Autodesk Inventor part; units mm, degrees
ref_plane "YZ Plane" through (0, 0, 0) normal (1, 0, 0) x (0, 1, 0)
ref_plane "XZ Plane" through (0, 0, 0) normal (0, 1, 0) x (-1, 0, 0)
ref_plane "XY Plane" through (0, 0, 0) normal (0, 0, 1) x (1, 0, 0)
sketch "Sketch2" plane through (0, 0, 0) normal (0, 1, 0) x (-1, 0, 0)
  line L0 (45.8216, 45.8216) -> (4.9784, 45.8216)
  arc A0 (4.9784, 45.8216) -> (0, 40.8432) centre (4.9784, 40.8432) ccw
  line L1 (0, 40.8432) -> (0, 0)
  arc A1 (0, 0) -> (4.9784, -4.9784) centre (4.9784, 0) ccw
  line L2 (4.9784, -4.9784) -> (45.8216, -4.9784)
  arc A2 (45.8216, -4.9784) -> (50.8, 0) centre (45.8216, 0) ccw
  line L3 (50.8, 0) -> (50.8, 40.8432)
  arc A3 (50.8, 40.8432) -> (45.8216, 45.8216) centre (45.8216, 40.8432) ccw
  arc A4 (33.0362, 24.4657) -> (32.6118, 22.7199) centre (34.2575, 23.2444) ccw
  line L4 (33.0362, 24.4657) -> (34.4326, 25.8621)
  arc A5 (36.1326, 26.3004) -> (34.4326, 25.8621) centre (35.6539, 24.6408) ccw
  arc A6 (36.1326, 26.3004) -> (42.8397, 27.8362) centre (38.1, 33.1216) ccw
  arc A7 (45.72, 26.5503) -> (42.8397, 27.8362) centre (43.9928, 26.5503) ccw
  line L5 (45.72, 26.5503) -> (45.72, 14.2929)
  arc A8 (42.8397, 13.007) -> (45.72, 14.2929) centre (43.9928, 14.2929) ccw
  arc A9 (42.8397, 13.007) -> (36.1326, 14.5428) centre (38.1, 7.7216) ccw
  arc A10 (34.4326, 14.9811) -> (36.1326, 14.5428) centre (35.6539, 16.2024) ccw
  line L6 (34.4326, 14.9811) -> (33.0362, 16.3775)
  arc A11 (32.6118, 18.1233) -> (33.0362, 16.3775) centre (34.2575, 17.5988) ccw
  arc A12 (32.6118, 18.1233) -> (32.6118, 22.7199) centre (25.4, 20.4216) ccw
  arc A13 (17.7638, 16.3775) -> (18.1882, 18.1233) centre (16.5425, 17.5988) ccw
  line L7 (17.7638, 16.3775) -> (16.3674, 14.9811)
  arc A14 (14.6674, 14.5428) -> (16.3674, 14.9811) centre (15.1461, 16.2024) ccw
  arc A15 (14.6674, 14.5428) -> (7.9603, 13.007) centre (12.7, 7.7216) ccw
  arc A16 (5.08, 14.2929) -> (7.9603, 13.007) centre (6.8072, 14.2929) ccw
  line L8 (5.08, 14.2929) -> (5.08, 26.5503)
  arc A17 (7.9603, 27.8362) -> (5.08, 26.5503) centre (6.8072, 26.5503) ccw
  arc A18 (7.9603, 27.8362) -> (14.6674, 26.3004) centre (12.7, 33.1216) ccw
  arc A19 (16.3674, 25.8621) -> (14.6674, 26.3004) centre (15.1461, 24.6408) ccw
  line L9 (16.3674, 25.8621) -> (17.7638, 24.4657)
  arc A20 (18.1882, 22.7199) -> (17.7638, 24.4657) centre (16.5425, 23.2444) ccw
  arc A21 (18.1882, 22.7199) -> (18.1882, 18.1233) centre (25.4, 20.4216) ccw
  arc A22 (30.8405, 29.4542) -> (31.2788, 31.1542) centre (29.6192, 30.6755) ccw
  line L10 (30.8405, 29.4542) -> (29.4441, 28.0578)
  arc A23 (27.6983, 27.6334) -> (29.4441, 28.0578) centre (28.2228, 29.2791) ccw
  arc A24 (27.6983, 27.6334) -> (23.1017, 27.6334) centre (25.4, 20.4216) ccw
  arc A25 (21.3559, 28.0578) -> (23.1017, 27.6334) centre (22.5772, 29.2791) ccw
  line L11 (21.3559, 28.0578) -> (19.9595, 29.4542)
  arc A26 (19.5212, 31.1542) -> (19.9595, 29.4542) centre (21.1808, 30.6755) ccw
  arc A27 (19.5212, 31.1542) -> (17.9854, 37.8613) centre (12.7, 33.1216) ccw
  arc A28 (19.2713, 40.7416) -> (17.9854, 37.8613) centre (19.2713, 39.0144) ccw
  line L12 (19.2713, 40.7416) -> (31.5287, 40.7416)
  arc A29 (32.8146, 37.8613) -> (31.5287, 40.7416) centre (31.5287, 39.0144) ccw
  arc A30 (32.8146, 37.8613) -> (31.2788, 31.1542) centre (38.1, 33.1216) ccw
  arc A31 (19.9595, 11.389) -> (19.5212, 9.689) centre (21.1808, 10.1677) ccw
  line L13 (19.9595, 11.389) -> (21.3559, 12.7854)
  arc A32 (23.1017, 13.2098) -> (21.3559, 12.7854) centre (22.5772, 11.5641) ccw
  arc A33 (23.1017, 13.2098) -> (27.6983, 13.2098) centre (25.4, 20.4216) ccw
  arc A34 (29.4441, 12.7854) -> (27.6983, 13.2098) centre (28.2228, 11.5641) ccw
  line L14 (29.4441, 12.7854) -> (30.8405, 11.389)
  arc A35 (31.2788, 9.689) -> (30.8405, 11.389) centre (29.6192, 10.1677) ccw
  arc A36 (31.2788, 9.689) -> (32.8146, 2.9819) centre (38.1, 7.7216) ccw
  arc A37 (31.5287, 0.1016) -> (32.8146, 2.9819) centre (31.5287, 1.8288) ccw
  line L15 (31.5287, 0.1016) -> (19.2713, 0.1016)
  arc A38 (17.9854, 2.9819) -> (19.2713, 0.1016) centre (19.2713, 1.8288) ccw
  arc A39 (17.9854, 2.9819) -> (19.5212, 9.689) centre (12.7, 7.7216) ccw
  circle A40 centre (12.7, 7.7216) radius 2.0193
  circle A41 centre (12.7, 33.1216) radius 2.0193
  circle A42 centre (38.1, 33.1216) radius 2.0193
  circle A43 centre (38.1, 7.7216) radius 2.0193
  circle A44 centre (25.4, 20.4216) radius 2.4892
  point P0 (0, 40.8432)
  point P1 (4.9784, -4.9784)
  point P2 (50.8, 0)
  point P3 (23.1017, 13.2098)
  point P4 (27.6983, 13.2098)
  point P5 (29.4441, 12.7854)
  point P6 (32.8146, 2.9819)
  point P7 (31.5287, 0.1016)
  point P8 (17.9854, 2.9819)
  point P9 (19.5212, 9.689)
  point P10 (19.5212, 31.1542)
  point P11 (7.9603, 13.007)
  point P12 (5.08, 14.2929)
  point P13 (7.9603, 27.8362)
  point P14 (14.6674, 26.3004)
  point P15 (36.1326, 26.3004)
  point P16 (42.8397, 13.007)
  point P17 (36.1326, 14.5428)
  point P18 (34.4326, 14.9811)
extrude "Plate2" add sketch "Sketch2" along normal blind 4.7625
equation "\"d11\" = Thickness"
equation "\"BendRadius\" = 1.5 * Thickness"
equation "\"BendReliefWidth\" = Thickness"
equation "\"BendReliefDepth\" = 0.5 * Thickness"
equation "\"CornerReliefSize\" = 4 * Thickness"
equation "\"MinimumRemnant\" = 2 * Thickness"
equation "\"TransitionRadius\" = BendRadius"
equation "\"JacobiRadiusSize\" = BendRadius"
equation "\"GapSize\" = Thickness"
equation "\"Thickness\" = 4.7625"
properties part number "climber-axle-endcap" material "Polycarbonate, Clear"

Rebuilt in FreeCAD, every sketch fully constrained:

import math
import FreeCAD as App
import Part
import Sketcher
from FreeCAD import Vector
Q = App.Units.Quantity

doc = App.newDocument("Part")
body = doc.addObject("PartDesign::Body", "Body")

sketch1 = body.newObject("Sketcher::SketchObject", "Sketch")
sketch1.AttachmentSupport = (doc.getObject("XZ_Plane"), [""])
sketch1.MapMode = "FlatFace"
sketch1.addGeometry(Part.ArcOfCircle(Part.Circle(Vector(-45.8216, 40.8432, 0), Vector(0, 0, 1), 4.9784), math.radians(90), math.radians(180)), False)
sketch1.addGeometry(Part.LineSegment(Vector(-45.8216, 45.8216, 0), Vector(-4.9784, 45.8216, 0)), False)
sketch1.addGeometry(Part.ArcOfCircle(Part.Circle(Vector(-4.9784, 40.8432, 0), Vector(0, 0, 1), 4.9784), math.radians(0), math.radians(90)), False)
sketch1.addGeometry(Part.LineSegment(Vector(0, 40.8432, 0), Vector(0, 0, 0)), False)
sketch1.addGeometry(Part.ArcOfCircle(Part.Circle(Vector(-4.9784, 0, 0), Vector(0, 0, 1), 4.9784), math.radians(-90), math.radians(0)), False)
sketch1.addGeometry(Part.LineSegment(Vector(-4.9784, -4.9784, 0), Vector(-45.8216, -4.9784, 0)), False)
sketch1.addGeometry(Part.ArcOfCircle(Part.Circle(Vector(-45.8216, 0, 0), Vector(0, 0, 1), 4.9784), math.radians(180), math.radians(270)), False)
sketch1.addGeometry(Part.LineSegment(Vector(-50.8, 0, 0), Vector(-50.8, 40.8432, 0)), False)
sketch1.addGeometry(Part.Circle(Vector(-12.7, 7.7216, 0), Vector(0, 0, 1), 2.0193), False)
sketch1.addGeometry(Part.ArcOfCircle(Part.Circle(Vector(-16.5425, 17.5988, 0), Vector(0, 0, 1), 1.727179), math.radians(162.322433), math.radians(225)), False)
sketch1.addGeometry(Part.LineSegment(Vector(-17.7638, 16.3775, 0), Vector(-16.3674, 14.9811, 0)), False)
sketch1.addGeometry(Part.ArcOfCircle(Part.Circle(Vector(-15.1461, 16.2024, 0), Vector(0, 0, 1), 1.72726), math.radians(-135), math.radians(-73.910164)), False)
sketch1.addGeometry(Part.ArcOfCircle(Part.Circle(Vector(-12.7, 7.7216, 0), Vector(0, 0, 1), 7.09931), math.radians(48.115728), math.radians(106.088848)), False)
sketch1.addGeometry(Part.ArcOfCircle(Part.Circle(Vector(-6.8072, 14.2929, 0), Vector(0, 0, 1), 1.7272), math.radians(-131.883406), math.radians(0)), False)
sketch1.addGeometry(Part.LineSegment(Vector(-5.08, 14.2929, 0), Vector(-5.08, 26.5503, 0)), False)
sketch1.addGeometry(Part.ArcOfCircle(Part.Circle(Vector(-6.8072, 26.5503, 0), Vector(0, 0, 1), 1.727188), math.radians(0), math.radians(131.883406)), False)
sketch1.addGeometry(Part.ArcOfCircle(Part.Circle(Vector(-12.7, 33.1216, 0), Vector(0, 0, 1), 7.099256), math.radians(-106.088848), math.radians(-48.115728)), False)
sketch1.addGeometry(Part.ArcOfCircle(Part.Circle(Vector(-15.1461, 24.6408, 0), Vector(0, 0, 1), 1.727179), math.radians(73.910164), math.radians(135)), False)
sketch1.addGeometry(Part.LineSegment(Vector(-16.3674, 25.8621, 0), Vector(-17.7638, 24.4657, 0)), False)
sketch1.addGeometry(Part.ArcOfCircle(Part.Circle(Vector(-16.5425, 23.2444, 0), Vector(0, 0, 1), 1.72726), math.radians(135), math.radians(197.677567)), False)
sketch1.addGeometry(Part.ArcOfCircle(Part.Circle(Vector(-25.4, 20.4216, 0), Vector(0, 0, 1), 7.569164), math.radians(-17.676354), math.radians(17.676354)), False)
sketch1.addGeometry(Part.ArcOfCircle(Part.Circle(Vector(-21.1808, 10.1677, 0), Vector(0, 0, 1), 1.727179), math.radians(-16.089836), math.radians(45)), False)
sketch1.addGeometry(Part.LineSegment(Vector(-19.9595, 11.389, 0), Vector(-21.3559, 12.7854, 0)), False)
sketch1.addGeometry(Part.ArcOfCircle(Part.Circle(Vector(-22.5772, 11.5641, 0), Vector(0, 0, 1), 1.72726), math.radians(45), math.radians(107.677567)), False)
sketch1.addGeometry(Part.ArcOfCircle(Part.Circle(Vector(-25.4, 20.4216, 0), Vector(0, 0, 1), 7.569164), math.radians(-107.676354), math.radians(-72.323646)), False)
sketch1.addGeometry(Part.ArcOfCircle(Part.Circle(Vector(-28.2228, 11.5641, 0), Vector(0, 0, 1), 1.727179), math.radians(72.322433), math.radians(135)), False)
sketch1.addGeometry(Part.LineSegment(Vector(-29.4441, 12.7854, 0), Vector(-30.8405, 11.389, 0)), False)
sketch1.addGeometry(Part.ArcOfCircle(Part.Circle(Vector(-29.6192, 10.1677, 0), Vector(0, 0, 1), 1.72726), math.radians(135), math.radians(196.089836)), False)
sketch1.addGeometry(Part.ArcOfCircle(Part.Circle(Vector(-38.1, 7.7216, 0), Vector(0, 0, 1), 7.09931), math.radians(-41.884272), math.radians(16.088848)), False)
sketch1.addGeometry(Part.ArcOfCircle(Part.Circle(Vector(-31.5287, 1.8288, 0), Vector(0, 0, 1), 1.7272), math.radians(138.116594), math.radians(270)), False)
sketch1.addGeometry(Part.LineSegment(Vector(-31.5287, 0.1016, 0), Vector(-19.2713, 0.1016, 0)), False)
sketch1.addGeometry(Part.ArcOfCircle(Part.Circle(Vector(-19.2713, 1.8288, 0), Vector(0, 0, 1), 1.727188), math.radians(-90), math.radians(41.883406)), False)
sketch1.addGeometry(Part.ArcOfCircle(Part.Circle(Vector(-12.7, 7.7216, 0), Vector(0, 0, 1), 7.099256), math.radians(163.911152), math.radians(221.884272)), False)
sketch1.addGeometry(Part.Circle(Vector(-38.1, 7.7216, 0), Vector(0, 0, 1), 2.0193), False)
sketch1.addGeometry(Part.Circle(Vector(-25.4, 20.4216, 0), Vector(0, 0, 1), 2.4892), False)
sketch1.addGeometry(Part.Circle(Vector(-12.7, 33.1216, 0), Vector(0, 0, 1), 2.0193), False)
sketch1.addGeometry(Part.ArcOfCircle(Part.Circle(Vector(-29.6192, 30.6755, 0), Vector(0, 0, 1), 1.727179), math.radians(163.910164), math.radians(225)), False)
sketch1.addGeometry(Part.LineSegment(Vector(-30.8405, 29.4542, 0), Vector(-29.4441, 28.0578, 0)), False)
sketch1.addGeometry(Part.ArcOfCircle(Part.Circle(Vector(-28.2228, 29.2791, 0), Vector(0, 0, 1), 1.72726), math.radians(-135), math.radians(-72.322433)), False)
sketch1.addGeometry(Part.ArcOfCircle(Part.Circle(Vector(-25.4, 20.4216, 0), Vector(0, 0, 1), 7.569164), math.radians(72.323646), math.radians(107.676354)), False)
sketch1.addGeometry(Part.ArcOfCircle(Part.Circle(Vector(-22.5772, 29.2791, 0), Vector(0, 0, 1), 1.727179), math.radians(-107.677567), math.radians(-45)), False)
sketch1.addGeometry(Part.LineSegment(Vector(-21.3559, 28.0578, 0), Vector(-19.9595, 29.4542, 0)), False)
sketch1.addGeometry(Part.ArcOfCircle(Part.Circle(Vector(-21.1808, 30.6755, 0), Vector(0, 0, 1), 1.72726), math.radians(-45), math.radians(16.089836)), False)
sketch1.addGeometry(Part.ArcOfCircle(Part.Circle(Vector(-12.7, 33.1216, 0), Vector(0, 0, 1), 7.09931), math.radians(138.115728), math.radians(196.088848)), False)
sketch1.addGeometry(Part.ArcOfCircle(Part.Circle(Vector(-19.2713, 39.0144, 0), Vector(0, 0, 1), 1.7272), math.radians(-41.883406), math.radians(90)), False)
sketch1.addGeometry(Part.LineSegment(Vector(-19.2713, 40.7416, 0), Vector(-31.5287, 40.7416, 0)), False)
sketch1.addGeometry(Part.ArcOfCircle(Part.Circle(Vector(-31.5287, 39.0144, 0), Vector(0, 0, 1), 1.727188), math.radians(90), math.radians(221.883406)), False)
sketch1.addGeometry(Part.ArcOfCircle(Part.Circle(Vector(-38.1, 33.1216, 0), Vector(0, 0, 1), 7.099256), math.radians(-16.088848), math.radians(41.884272)), False)
sketch1.addGeometry(Part.ArcOfCircle(Part.Circle(Vector(-34.2575, 23.2444, 0), Vector(0, 0, 1), 1.727179), math.radians(-17.677567), math.radians(45)), False)
sketch1.addGeometry(Part.LineSegment(Vector(-33.0362, 24.4657, 0), Vector(-34.4326, 25.8621, 0)), False)
sketch1.addGeometry(Part.ArcOfCircle(Part.Circle(Vector(-35.6539, 24.6408, 0), Vector(0, 0, 1), 1.72726), math.radians(45), math.radians(106.089836)), False)
sketch1.addGeometry(Part.ArcOfCircle(Part.Circle(Vector(-38.1, 33.1216, 0), Vector(0, 0, 1), 7.09931), math.radians(-131.884272), math.radians(-73.911152)), False)
sketch1.addGeometry(Part.ArcOfCircle(Part.Circle(Vector(-43.9928, 26.5503, 0), Vector(0, 0, 1), 1.7272), math.radians(48.116594), math.radians(180)), False)
sketch1.addGeometry(Part.LineSegment(Vector(-45.72, 26.5503, 0), Vector(-45.72, 14.2929, 0)), False)
sketch1.addGeometry(Part.ArcOfCircle(Part.Circle(Vector(-43.9928, 14.2929, 0), Vector(0, 0, 1), 1.727188), math.radians(180), math.radians(311.883406)), False)
sketch1.addGeometry(Part.ArcOfCircle(Part.Circle(Vector(-38.1, 7.7216, 0), Vector(0, 0, 1), 7.099256), math.radians(73.911152), math.radians(131.884272)), False)
sketch1.addGeometry(Part.ArcOfCircle(Part.Circle(Vector(-35.6539, 16.2024, 0), Vector(0, 0, 1), 1.727179), math.radians(-106.089836), math.radians(-45)), False)
sketch1.addGeometry(Part.LineSegment(Vector(-34.4326, 14.9811, 0), Vector(-33.0362, 16.3775, 0)), False)
sketch1.addGeometry(Part.ArcOfCircle(Part.Circle(Vector(-34.2575, 17.5988, 0), Vector(0, 0, 1), 1.72726), math.radians(-45), math.radians(17.677567)), False)
sketch1.addGeometry(Part.ArcOfCircle(Part.Circle(Vector(-25.4, 20.4216, 0), Vector(0, 0, 1), 7.569164), math.radians(162.323646), math.radians(197.676354)), False)
sketch1.addGeometry(Part.Circle(Vector(-38.1, 33.1216, 0), Vector(0, 0, 1), 2.0193), False)
sketch1.addConstraint(Sketcher.Constraint("Tangent", 0, 1, 1, 1))
sketch1.addConstraint(Sketcher.Constraint("Tangent", 1, 2, 2, 2))
sketch1.addConstraint(Sketcher.Constraint("Tangent", 2, 1, 3, 1))
sketch1.addConstraint(Sketcher.Constraint("Tangent", 3, 2, 4, 2))
sketch1.addConstraint(Sketcher.Constraint("Tangent", 4, 1, 5, 1))
sketch1.addConstraint(Sketcher.Constraint("Tangent", 5, 2, 6, 2))
sketch1.addConstraint(Sketcher.Constraint("Tangent", 6, 1, 7, 1))
sketch1.addConstraint(Sketcher.Constraint("Tangent", 7, 2, 0, 2))
sketch1.addConstraint(Sketcher.Constraint("Tangent", 9, 2, 10, 1))
sketch1.addConstraint(Sketcher.Constraint("Tangent", 10, 2, 11, 1))
sketch1.addConstraint(Sketcher.Constraint("Tangent", 11, 2, 12, 2))
sketch1.addConstraint(Sketcher.Constraint("Tangent", 12, 1, 13, 1))
sketch1.addConstraint(Sketcher.Constraint("Tangent", 13, 2, 14, 1))
sketch1.addConstraint(Sketcher.Constraint("Tangent", 14, 2, 15, 1))
sketch1.addConstraint(Sketcher.Constraint("Tangent", 15, 2, 16, 2))
sketch1.addConstraint(Sketcher.Constraint("Tangent", 16, 1, 17, 1))
sketch1.addConstraint(Sketcher.Constraint("Tangent", 17, 2, 18, 1))
sketch1.addConstraint(Sketcher.Constraint("Tangent", 18, 2, 19, 1))
sketch1.addConstraint(Sketcher.Constraint("Tangent", 19, 2, 20, 2))
sketch1.addConstraint(Sketcher.Constraint("Tangent", 20, 1, 9, 1))
sketch1.addConstraint(Sketcher.Constraint("Tangent", 21, 2, 22, 1))
sketch1.addConstraint(Sketcher.Constraint("Tangent", 22, 2, 23, 1))
sketch1.addConstraint(Sketcher.Constraint("Tangent", 23, 2, 24, 2))
sketch1.addConstraint(Sketcher.Constraint("Tangent", 24, 1, 25, 1))
sketch1.addConstraint(Sketcher.Constraint("Tangent", 25, 2, 26, 1))
sketch1.addConstraint(Sketcher.Constraint("Tangent", 26, 2, 27, 1))
sketch1.addConstraint(Sketcher.Constraint("Tangent", 27, 2, 28, 2))
sketch1.addConstraint(Sketcher.Constraint("Tangent", 28, 1, 29, 1))
sketch1.addConstraint(Sketcher.Constraint("Tangent", 29, 2, 30, 1))
sketch1.addConstraint(Sketcher.Constraint("Tangent", 30, 2, 31, 1))
sketch1.addConstraint(Sketcher.Constraint("Tangent", 31, 2, 32, 2))
sketch1.addConstraint(Sketcher.Constraint("Tangent", 32, 1, 21, 1))
sketch1.addConstraint(Sketcher.Constraint("Tangent", 36, 2, 37, 1))
sketch1.addConstraint(Sketcher.Constraint("Tangent", 37, 2, 38, 1))
sketch1.addConstraint(Sketcher.Constraint("Tangent", 38, 2, 39, 2))
sketch1.addConstraint(Sketcher.Constraint("Tangent", 39, 1, 40, 1))
sketch1.addConstraint(Sketcher.Constraint("Tangent", 40, 2, 41, 1))
sketch1.addConstraint(Sketcher.Constraint("Tangent", 41, 2, 42, 1))
sketch1.addConstraint(Sketcher.Constraint("Tangent", 42, 2, 43, 2))
sketch1.addConstraint(Sketcher.Constraint("Tangent", 43, 1, 44, 1))
sketch1.addConstraint(Sketcher.Constraint("Tangent", 44, 2, 45, 1))
sketch1.addConstraint(Sketcher.Constraint("Tangent", 45, 2, 46, 1))
sketch1.addConstraint(Sketcher.Constraint("Tangent", 46, 2, 47, 2))
sketch1.addConstraint(Sketcher.Constraint("Tangent", 47, 1, 36, 1))
sketch1.addConstraint(Sketcher.Constraint("Tangent", 48, 2, 49, 1))
sketch1.addConstraint(Sketcher.Constraint("Tangent", 49, 2, 50, 1))
sketch1.addConstraint(Sketcher.Constraint("Tangent", 50, 2, 51, 2))
sketch1.addConstraint(Sketcher.Constraint("Tangent", 51, 1, 52, 1))
sketch1.addConstraint(Sketcher.Constraint("Tangent", 52, 2, 53, 1))
sketch1.addConstraint(Sketcher.Constraint("Tangent", 53, 2, 54, 1))
sketch1.addConstraint(Sketcher.Constraint("Tangent", 54, 2, 55, 2))
sketch1.addConstraint(Sketcher.Constraint("Tangent", 55, 1, 56, 1))
sketch1.addConstraint(Sketcher.Constraint("Tangent", 56, 2, 57, 1))
sketch1.addConstraint(Sketcher.Constraint("Tangent", 57, 2, 58, 1))
sketch1.addConstraint(Sketcher.Constraint("Tangent", 58, 2, 59, 2))
sketch1.addConstraint(Sketcher.Constraint("Tangent", 59, 1, 48, 1))
sketch1.addConstraint(Sketcher.Constraint("Horizontal", 1))
sketch1.addConstraint(Sketcher.Constraint("Vertical", 3))
sketch1.addConstraint(Sketcher.Constraint("Horizontal", 5))
sketch1.addConstraint(Sketcher.Constraint("Vertical", 7))
sketch1.addConstraint(Sketcher.Constraint("Vertical", 14))
sketch1.addConstraint(Sketcher.Constraint("Horizontal", 30))
sketch1.addConstraint(Sketcher.Constraint("Horizontal", 45))
sketch1.addConstraint(Sketcher.Constraint("Vertical", 53))
sketch1.addConstraint(Sketcher.Constraint("Coincident", 3, 2, -1, 1))
sketch1.addConstraint(Sketcher.Constraint("Coincident", 12, 3, 8, 3))
sketch1.addConstraint(Sketcher.Constraint("Coincident", 24, 3, 20, 3))
sketch1.addConstraint(Sketcher.Constraint("Coincident", 32, 3, 8, 3))
sketch1.addConstraint(Sketcher.Constraint("Coincident", 33, 3, 28, 3))
sketch1.addConstraint(Sketcher.Constraint("Coincident", 34, 3, 20, 3))
sketch1.addConstraint(Sketcher.Constraint("Coincident", 35, 3, 16, 3))
sketch1.addConstraint(Sketcher.Constraint("Coincident", 39, 3, 20, 3))
sketch1.addConstraint(Sketcher.Constraint("Coincident", 43, 3, 16, 3))
sketch1.addConstraint(Sketcher.Constraint("Coincident", 51, 3, 47, 3))
sketch1.addConstraint(Sketcher.Constraint("Coincident", 55, 3, 28, 3))
sketch1.addConstraint(Sketcher.Constraint("Coincident", 59, 3, 20, 3))
sketch1.addConstraint(Sketcher.Constraint("Coincident", 60, 3, 47, 3))
sketch1.addConstraint(Sketcher.Constraint("Equal", 0, 2))
sketch1.addConstraint(Sketcher.Constraint("Equal", 2, 4))
sketch1.addConstraint(Sketcher.Constraint("Equal", 4, 6))
sketch1.addConstraint(Sketcher.Constraint("Equal", 9, 11))
sketch1.addConstraint(Sketcher.Constraint("Equal", 11, 13))
sketch1.addConstraint(Sketcher.Constraint("Equal", 13, 15))
sketch1.addConstraint(Sketcher.Constraint("Equal", 12, 16))
sketch1.addConstraint(Sketcher.Constraint("Equal", 15, 17))
sketch1.addConstraint(Sketcher.Constraint("Equal", 17, 19))
sketch1.addConstraint(Sketcher.Constraint("Equal", 19, 21))
sketch1.addConstraint(Sketcher.Constraint("Equal", 21, 23))
sketch1.addConstraint(Sketcher.Constraint("Equal", 20, 24))
sketch1.addConstraint(Sketcher.Constraint("Equal", 23, 25))
sketch1.addConstraint(Sketcher.Constraint("Equal", 25, 27))
sketch1.addConstraint(Sketcher.Constraint("Equal", 16, 28))
sketch1.addConstraint(Sketcher.Constraint("Equal", 27, 29))
sketch1.addConstraint(Sketcher.Constraint("Equal", 29, 31))
sketch1.addConstraint(Sketcher.Constraint("Equal", 28, 32))
sketch1.addConstraint(Sketcher.Constraint("Equal", 8, 33))
sketch1.addConstraint(Sketcher.Constraint("Equal", 33, 35))
sketch1.addConstraint(Sketcher.Constraint("Equal", 31, 36))
sketch1.addConstraint(Sketcher.Constraint("Equal", 36, 38))
sketch1.addConstraint(Sketcher.Constraint("Equal", 24, 39))
sketch1.addConstraint(Sketcher.Constraint("Equal", 38, 40))
sketch1.addConstraint(Sketcher.Constraint("Equal", 40, 42))
sketch1.addConstraint(Sketcher.Constraint("Equal", 32, 43))
sketch1.addConstraint(Sketcher.Constraint("Equal", 42, 44))
sketch1.addConstraint(Sketcher.Constraint("Equal", 44, 46))
sketch1.addConstraint(Sketcher.Constraint("Equal", 43, 47))
sketch1.addConstraint(Sketcher.Constraint("Equal", 46, 48))
sketch1.addConstraint(Sketcher.Constraint("Equal", 48, 50))
sketch1.addConstraint(Sketcher.Constraint("Equal", 47, 51))
sketch1.addConstraint(Sketcher.Constraint("Equal", 50, 52))
sketch1.addConstraint(Sketcher.Constraint("Equal", 52, 54))
sketch1.addConstraint(Sketcher.Constraint("Equal", 51, 55))
sketch1.addConstraint(Sketcher.Constraint("Equal", 54, 56))
sketch1.addConstraint(Sketcher.Constraint("Equal", 56, 58))
sketch1.addConstraint(Sketcher.Constraint("Equal", 39, 59))
sketch1.addConstraint(Sketcher.Constraint("Equal", 35, 60))
sketch1.addConstraint(Sketcher.Constraint("Perpendicular", 10, 18))
sketch1.addConstraint(Sketcher.Constraint("Perpendicular", 18, 22))
sketch1.addConstraint(Sketcher.Constraint("Perpendicular", 22, 26))
sketch1.addConstraint(Sketcher.Constraint("Perpendicular", 26, 37))
sketch1.addConstraint(Sketcher.Constraint("Perpendicular", 37, 41))
sketch1.addConstraint(Sketcher.Constraint("Perpendicular", 41, 49))
sketch1.addConstraint(Sketcher.Constraint("Perpendicular", 49, 57))
sketch1.addConstraint(Sketcher.Constraint("Horizontal", 23, 3, 25, 3))
sketch1.addConstraint(Sketcher.Constraint("Horizontal", 21, 3, 27, 3))
sketch1.addConstraint(Sketcher.Constraint("Horizontal", 12, 3, 28, 3))
sketch1.addConstraint(Sketcher.Constraint("Horizontal", 38, 3, 40, 3))
sketch1.addConstraint(Sketcher.Constraint("Horizontal", 36, 3, 42, 3))
sketch1.addConstraint(Sketcher.Constraint("Horizontal", 43, 3, 47, 3))
sketch1.addConstraint(Sketcher.Constraint("Horizontal", 19, 3, 48, 3))
sketch1.addConstraint(Sketcher.Constraint("Horizontal", 15, 3, 52, 3))
sketch1.addConstraint(Sketcher.Constraint("Horizontal", 13, 3, 54, 3))
sketch1.addConstraint(Sketcher.Constraint("Horizontal", 11, 3, 56, 3))
sketch1.addConstraint(Sketcher.Constraint("Vertical", 12, 3, 16, 3))
sketch1.addConstraint(Sketcher.Constraint("Vertical", 11, 3, 17, 3))
sketch1.addConstraint(Sketcher.Constraint("Vertical", 9, 3, 19, 3))
sketch1.addConstraint(Sketcher.Constraint("Vertical", 27, 3, 36, 3))
sketch1.addConstraint(Sketcher.Constraint("Vertical", 31, 3, 44, 3))
sketch1.addConstraint(Sketcher.Constraint("Equal", 5, 3))
sketch1.addConstraint(Sketcher.Constraint("Equal", 45, 14))
sketch1.addConstraint(Sketcher.Constraint("Equal", 18, 22))
sketch1.addConstraint(Sketcher.Constraint("Diameter", 8, Q("0.159 in")))
sketch1.addConstraint(Sketcher.Constraint("Diameter", 34, Q("0.196 in")))
sketch1.addConstraint(Sketcher.Constraint("DistanceX", 20, 3, -1, 1, Q("1 in")))
sketch1.addConstraint(Sketcher.Constraint("DistanceX", 6, 1, -1, 1, Q("2 in")))
sketch1.addConstraint(Sketcher.Constraint("Radius", 0, Q("0.196 in")))
sketch1.addConstraint(Sketcher.Constraint("Radius", 9, Q("0.068 in")))
sketch1.addConstraint(Sketcher.Constraint("Radius", 20, Q("0.298 in")))
sketch1.addConstraint(Sketcher.Constraint("DistanceX", 8, 3, -1, 1, Q("0.5 in")))
sketch1.addConstraint(Sketcher.Constraint("DistanceX", 13, 2, -1, 1, Q("0.2 in")))
sketch1.addConstraint(Sketcher.Constraint("Radius", 12, Q("0.2795 in")))
sketch1.addConstraint(Sketcher.Constraint("DistanceY", -1, 1, 8, 3, Q("0.304 in")))
sketch1.addConstraint(Sketcher.Constraint("DistanceY", -1, 1, 16, 3, Q("1.304 in")))
sketch1.addConstraint(Sketcher.Constraint("DistanceX", 11, 3, -1, 1, Q("0.5963 in")))
pad1 = body.newObject("PartDesign::Pad", "Pad")
pad1.Profile = sketch1
pad1.Length = Q("0.1875 in")
pad1.Reversed = True

doc.recompute()
